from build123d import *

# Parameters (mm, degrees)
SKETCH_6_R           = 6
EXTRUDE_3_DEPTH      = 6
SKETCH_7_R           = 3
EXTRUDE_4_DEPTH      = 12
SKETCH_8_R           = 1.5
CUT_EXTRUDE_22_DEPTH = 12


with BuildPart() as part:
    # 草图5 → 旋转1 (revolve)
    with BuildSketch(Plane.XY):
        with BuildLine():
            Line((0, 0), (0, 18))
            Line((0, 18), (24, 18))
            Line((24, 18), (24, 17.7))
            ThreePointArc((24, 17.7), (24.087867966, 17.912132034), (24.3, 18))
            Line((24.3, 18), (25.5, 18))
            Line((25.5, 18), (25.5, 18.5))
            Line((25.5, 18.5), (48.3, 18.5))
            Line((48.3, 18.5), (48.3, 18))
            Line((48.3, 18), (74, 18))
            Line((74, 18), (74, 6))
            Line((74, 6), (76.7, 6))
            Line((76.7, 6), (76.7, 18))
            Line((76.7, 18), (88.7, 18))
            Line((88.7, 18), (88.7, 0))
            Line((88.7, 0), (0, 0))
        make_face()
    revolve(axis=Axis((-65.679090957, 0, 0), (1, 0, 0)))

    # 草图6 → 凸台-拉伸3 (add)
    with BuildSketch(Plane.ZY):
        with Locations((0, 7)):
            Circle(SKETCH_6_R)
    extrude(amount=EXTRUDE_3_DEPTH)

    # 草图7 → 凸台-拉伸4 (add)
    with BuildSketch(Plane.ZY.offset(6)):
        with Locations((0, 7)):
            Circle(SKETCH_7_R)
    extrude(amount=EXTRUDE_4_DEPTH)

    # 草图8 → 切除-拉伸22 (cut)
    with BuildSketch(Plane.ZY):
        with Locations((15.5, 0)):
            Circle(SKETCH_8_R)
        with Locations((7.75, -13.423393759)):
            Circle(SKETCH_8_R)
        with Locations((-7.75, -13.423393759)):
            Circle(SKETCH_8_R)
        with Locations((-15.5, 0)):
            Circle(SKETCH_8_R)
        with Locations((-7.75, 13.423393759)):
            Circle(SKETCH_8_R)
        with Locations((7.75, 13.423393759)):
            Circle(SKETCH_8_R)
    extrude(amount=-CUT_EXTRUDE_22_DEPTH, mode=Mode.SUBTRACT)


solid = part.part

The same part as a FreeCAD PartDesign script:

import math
import FreeCAD as App
import Part
import Sketcher
from FreeCAD import Vector

doc = App.newDocument("Part")
body = doc.addObject("PartDesign::Body", "Body")

sketch1 = body.newObject("Sketcher::SketchObject", "Sketch")
sketch1.AttachmentSupport = (doc.getObject("XY_Plane"), [""])
sketch1.MapMode = "FlatFace"
sketch1.addGeometry(Part.LineSegment(Vector(0, 18, 0), Vector(0, 0, 0)), False)
sketch1.addGeometry(Part.LineSegment(Vector(0, 0, 0), Vector(88.7, 0, 0)), False)
sketch1.addGeometry(Part.LineSegment(Vector(88.7, 0, 0), Vector(88.7, 18, 0)), False)
sketch1.addGeometry(Part.LineSegment(Vector(88.7, 18, 0), Vector(76.7, 18, 0)), False)
sketch1.addGeometry(Part.LineSegment(Vector(76.7, 18, 0), Vector(76.7, 6, 0)), False)
sketch1.addGeometry(Part.LineSegment(Vector(76.7, 6, 0), Vector(74, 6, 0)), False)
sketch1.addGeometry(Part.LineSegment(Vector(74, 6, 0), Vector(74, 18, 0)), False)
sketch1.addGeometry(Part.LineSegment(Vector(74, 18, 0), Vector(48.3, 18, 0)), False)
sketch1.addGeometry(Part.LineSegment(Vector(48.3, 18, 0), Vector(48.3, 18.5, 0)), False)
sketch1.addGeometry(Part.LineSegment(Vector(48.3, 18.5, 0), Vector(25.5, 18.5, 0)), False)
sketch1.addGeometry(Part.LineSegment(Vector(25.5, 18.5, 0), Vector(25.5, 18, 0)), False)
sketch1.addGeometry(Part.LineSegment(Vector(25.5, 18, 0), Vector(24.3, 18, 0)), False)
sketch1.addGeometry(Part.ArcOfCircle(Part.Circle(Vector(24.3, 17.7, 0), Vector(0, 0, 1), 0.3), math.radians(90), math.radians(180)), False)
sketch1.addGeometry(Part.LineSegment(Vector(24, 17.7, 0), Vector(24, 18, 0)), False)
sketch1.addGeometry(Part.LineSegment(Vector(24, 18, 0), Vector(0, 18, 0)), False)
sketch1.addConstraint(Sketcher.Constraint("Coincident", 0, 2, 1, 1))
sketch1.addConstraint(Sketcher.Constraint("Coincident", 1, 2, 2, 1))
sketch1.addConstraint(Sketcher.Constraint("Coincident", 2, 2, 3, 1))
sketch1.addConstraint(Sketcher.Constraint("Coincident", 3, 2, 4, 1))
sketch1.addConstraint(Sketcher.Constraint("Coincident", 4, 2, 5, 1))
sketch1.addConstraint(Sketcher.Constraint("Coincident", 5, 2, 6, 1))
sketch1.addConstraint(Sketcher.Constraint("Coincident", 6, 2, 7, 1))
sketch1.addConstraint(Sketcher.Constraint("Coincident", 7, 2, 8, 1))
sketch1.addConstraint(Sketcher.Constraint("Coincident", 8, 2, 9, 1))
sketch1.addConstraint(Sketcher.Constraint("Coincident", 9, 2, 10, 1))
sketch1.addConstraint(Sketcher.Constraint("Coincident", 10, 2, 11, 1))
sketch1.addConstraint(Sketcher.Constraint("Tangent", 11, 2, 12, 1))
sketch1.addConstraint(Sketcher.Constraint("Tangent", 12, 2, 13, 1))
sketch1.addConstraint(Sketcher.Constraint("Coincident", 13, 2, 14, 1))
sketch1.addConstraint(Sketcher.Constraint("Coincident", 14, 2, 0, 1))
sketch1.addConstraint(Sketcher.Constraint("Vertical", 0))
sketch1.addConstraint(Sketcher.Constraint("Horizontal", 1))
sketch1.addConstraint(Sketcher.Constraint("Vertical", 2))
sketch1.addConstraint(Sketcher.Constraint("Horizontal", 3))
sketch1.addConstraint(Sketcher.Constraint("Vertical", 4))
sketch1.addConstraint(Sketcher.Constraint("Horizontal", 5))
sketch1.addConstraint(Sketcher.Constraint("Vertical", 6))
sketch1.addConstraint(Sketcher.Constraint("Horizontal", 7))
sketch1.addConstraint(Sketcher.Constraint("Vertical", 8))
sketch1.addConstraint(Sketcher.Constraint("Horizontal", 9))
sketch1.addConstraint(Sketcher.Constraint("Vertical", 10))
sketch1.addConstraint(Sketcher.Constraint("Horizontal", 11))
sketch1.addConstraint(Sketcher.Constraint("Vertical", 13))
sketch1.addConstraint(Sketcher.Constraint("Horizontal", 14))
sketch1.addConstraint(Sketcher.Constraint("Coincident", 0, 2, -1, 1))
sketch1.addConstraint(Sketcher.Constraint("Horizontal", 3, 2, 6, 2))
sketch1.addConstraint(Sketcher.Constraint("Horizontal", 7, 2, 10, 2))
sketch1.addConstraint(Sketcher.Constraint("Horizontal", 11, 2, 13, 2))
sketch1.addConstraint(Sketcher.Constraint("Equal", 3, 4))
sketch1.addConstraint(Sketcher.Constraint("Radius", 12, 0.3))
sketch1.addConstraint(Sketcher.Constraint("DistanceX", 3, 2, 3, 1, 12.0))
sketch1.addConstraint(Sketcher.Constraint("DistanceX", 14, 2, 14, 1, 24.0))
sketch1.addConstraint(Sketcher.Constraint("DistanceY", 0, 2, 0, 1, 18.0))
sketch1.addConstraint(Sketcher.Constraint("DistanceX", 1, 1, 1, 2, 88.7))
sketch1.addConstraint(Sketcher.Constraint("DistanceX", 5, 2, 5, 1, 2.7))
sketch1.addConstraint(Sketcher.Constraint("DistanceX", 7, 2, 7, 1, 25.7))
sketch1.addConstraint(Sketcher.Constraint("DistanceX", 9, 2, 9, 1, 22.8))
sketch1.addConstraint(Sketcher.Constraint("DistanceY", 8, 1, 8, 2, 0.5))
revolution = body.newObject("PartDesign::Revolution", "Revolution")
revolution.Profile = sketch1
revolution.ReferenceAxis = (sketch1, ["H_Axis"])
revolution.Angle = 360

sketch2 = body.newObject("Sketcher::SketchObject", "Sketch001")
sketch2.AttachmentSupport = (doc.getObject("YZ_Plane"), [""])
sketch2.MapMode = "FlatFace"
sketch2.addGeometry(Part.Circle(Vector(7, 0, 0), Vector(0, 0, 1), 6), False)
sketch2.addConstraint(Sketcher.Constraint("PointOnObject", 0, 3, -1))
sketch2.addConstraint(Sketcher.Constraint("Diameter", 0, 12.0))
sketch2.addConstraint(Sketcher.Constraint("DistanceX", -1, 1, 0, 3, 7.0))
pad1 = body.newObject("PartDesign::Pad", "Pad")
pad1.Profile = sketch2
pad1.Length = 6
pad1.Reversed = True

sketch3 = body.newObject("Sketcher::SketchObject", "Sketch002")
sketch3.AttachmentSupport = (doc.getObject("YZ_Plane"), [""])
sketch3.MapMode = "FlatFace"
sketch3.AttachmentOffset = App.Placement(Vector(0, 0, -6), App.Rotation())
sketch3.addGeometry(Part.Circle(Vector(7, 0, 0), Vector(0, 0, 1), 3), False)
sketch3.addConstraint(Sketcher.Constraint("PointOnObject", 0, 3, -1))
sketch3.addConstraint(Sketcher.Constraint("Diameter", 0, 6.0))
sketch3.addConstraint(Sketcher.Constraint("DistanceX", -1, 1, 0, 3, 7.0))
pad2 = body.newObject("PartDesign::Pad", "Pad001")
pad2.Profile = sketch3
pad2.Length = 12
pad2.Reversed = True

sketch4 = body.newObject("Sketcher::SketchObject", "Sketch003")
sketch4.AttachmentSupport = (doc.getObject("YZ_Plane"), [""])
sketch4.MapMode = "FlatFace"
sketch4.addGeometry(Part.Circle(Vector(0, 15.5, 0), Vector(0, 0, 1), 1.5), False)
sketch4.addGeometry(Part.Circle(Vector(-13.4, 7.8, 0), Vector(0, 0, 1), 1.5), False)
sketch4.addGeometry(Part.Circle(Vector(-13.4, -7.8, 0), Vector(0, 0, 1), 1.5), False)
sketch4.addGeometry(Part.Circle(Vector(0, -15.5, 0), Vector(0, 0, 1), 1.5), False)
sketch4.addGeometry(Part.Circle(Vector(13.4, -7.8, 0), Vector(0, 0, 1), 1.5), False)
sketch4.addGeometry(Part.Circle(Vector(13.4, 7.8, 0), Vector(0, 0, 1), 1.5), False)
sketch4.addConstraint(Sketcher.Constraint("Equal", 0, 1))
sketch4.addConstraint(Sketcher.Constraint("Equal", 1, 2))
sketch4.addConstraint(Sketcher.Constraint("Equal", 2, 3))
sketch4.addConstraint(Sketcher.Constraint("Equal", 3, 4))
sketch4.addConstraint(Sketcher.Constraint("Equal", 4, 5))
sketch4.addConstraint(Sketcher.Constraint("Symmetric", 0, 3, 3, 3, -1, 1))
sketch4.addConstraint(Sketcher.Constraint("Symmetric", 1, 3, 4, 3, -1, 1))
sketch4.addConstraint(Sketcher.Constraint("Symmetric", 2, 3, 5, 3, -1, 1))
sketch4.addConstraint(Sketcher.Constraint("Symmetric", 2, 3, 4, 3, -2))
sketch4.addConstraint(Sketcher.Constraint("PointOnObject", 0, 3, -2))
sketch4.addConstraint(Sketcher.Constraint("Diameter", 0, 3.0))
sketch4.addConstraint(Sketcher.Constraint("DistanceY", 3, 3, 0, 3, 31.0))
sketch4.addConstraint(Sketcher.Constraint("DistanceY", 2, 3, 1, 3, 15.5))
sketch4.addConstraint(Sketcher.Constraint("DistanceX", 1, 3, -1, 1, 13.423394))
pocket1 = body.newObject("PartDesign::Pocket", "Pocket")
pocket1.Profile = sketch4
pocket1.Length = 12
pocket1.Reversed = True

doc.recompute()
